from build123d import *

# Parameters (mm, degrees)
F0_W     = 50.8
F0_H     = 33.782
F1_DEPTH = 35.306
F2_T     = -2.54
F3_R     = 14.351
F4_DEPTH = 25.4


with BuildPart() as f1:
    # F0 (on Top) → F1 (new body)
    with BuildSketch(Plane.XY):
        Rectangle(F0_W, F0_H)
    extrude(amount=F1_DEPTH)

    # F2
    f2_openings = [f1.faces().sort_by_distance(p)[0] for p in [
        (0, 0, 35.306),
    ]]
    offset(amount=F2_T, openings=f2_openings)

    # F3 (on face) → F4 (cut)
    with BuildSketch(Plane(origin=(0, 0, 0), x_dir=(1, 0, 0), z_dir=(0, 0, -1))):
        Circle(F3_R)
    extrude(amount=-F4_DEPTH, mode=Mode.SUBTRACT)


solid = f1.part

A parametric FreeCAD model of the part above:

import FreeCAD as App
import Part
import Sketcher
Q = App.Units.Quantity


def faces_at(feature, points):
    """Names of the faces that lie closest to the given points."""
    faces = feature.Shape.Faces
    near = lambda p: min(range(len(faces)), key=lambda i: faces[i].distToShape(Part.Vertex(*p))[0])
    return sorted({f"Face{near(p) + 1}" for p in points})


def add_polygon(sketch, points):
    """Adds a closed chain of lines whose ends are joined by coincident constraints."""
    first, n = sketch.GeometryCount, len(points)
    for a, b in zip(points, points[1:] + points[:1]):
        sketch.addGeometry(Part.LineSegment(App.Vector(*a, 0), App.Vector(*b, 0)), False)
    for i in range(n):
        sketch.addConstraint(Sketcher.Constraint("Coincident", first + i, 2, first + (i + 1) % n, 1))

doc = App.newDocument("Part")
body = doc.addObject("PartDesign::Body", "Body")

# Sketch on XY plane
sketch1 = body.newObject("Sketcher::SketchObject", "Sketch")
sketch1.AttachmentSupport = (doc.getObject("XY_Plane"), [""])
sketch1.MapMode = "FlatFace"
add_polygon(sketch1, [(-25, 17), (-25, -17), (25, -17), (25, 17)])  # lines 0-3
sketch1.addConstraint(Sketcher.Constraint("Vertical", 0))
sketch1.addConstraint(Sketcher.Constraint("Horizontal", 1))
sketch1.addConstraint(Sketcher.Constraint("Vertical", 2))
sketch1.addConstraint(Sketcher.Constraint("Horizontal", 3))
sketch1.addConstraint(Sketcher.Constraint("Symmetric", 0, 2, 2, 2, -1, 1))
sketch1.addConstraint(Sketcher.Constraint("DistanceX", 1, 1, 1, 2, Q("2 in")))
sketch1.addConstraint(Sketcher.Constraint("DistanceY", 0, 2, 0, 1, Q("1.33 in")))
pad1 = body.newObject("PartDesign::Pad", "Pad")
pad1.Profile = sketch1
pad1.Length = Q("1.39 in")
doc.recompute()

thickness = body.newObject("PartDesign::Thickness", "Thickness")
thickness.Base = (pad1, faces_at(pad1, [(0, 0, 35.306)]))
thickness.Value = Q("0.1 in")
thickness.Reversed = True
thickness.Join = "Arc"

# Sketch on XY plane
sketch2 = body.newObject("Sketcher::SketchObject", "Sketch001")
sketch2.AttachmentSupport = (doc.getObject("XY_Plane"), [""])
sketch2.MapMode = "FlatFace"
sketch2.addGeometry(Part.Circle(App.Vector(0, 0, 0), App.Vector(0, 0, 1), 14), False)
sketch2.addConstraint(Sketcher.Constraint("Coincident", 0, 3, -1, 1))
sketch2.addConstraint(Sketcher.Constraint("Diameter", 0, Q("1.13 in")))
pocket1 = body.newObject("PartDesign::Pocket", "Pocket")
pocket1.Profile = sketch2
pocket1.Length = Q("1 in")
pocket1.Reversed = True

doc.recompute()
